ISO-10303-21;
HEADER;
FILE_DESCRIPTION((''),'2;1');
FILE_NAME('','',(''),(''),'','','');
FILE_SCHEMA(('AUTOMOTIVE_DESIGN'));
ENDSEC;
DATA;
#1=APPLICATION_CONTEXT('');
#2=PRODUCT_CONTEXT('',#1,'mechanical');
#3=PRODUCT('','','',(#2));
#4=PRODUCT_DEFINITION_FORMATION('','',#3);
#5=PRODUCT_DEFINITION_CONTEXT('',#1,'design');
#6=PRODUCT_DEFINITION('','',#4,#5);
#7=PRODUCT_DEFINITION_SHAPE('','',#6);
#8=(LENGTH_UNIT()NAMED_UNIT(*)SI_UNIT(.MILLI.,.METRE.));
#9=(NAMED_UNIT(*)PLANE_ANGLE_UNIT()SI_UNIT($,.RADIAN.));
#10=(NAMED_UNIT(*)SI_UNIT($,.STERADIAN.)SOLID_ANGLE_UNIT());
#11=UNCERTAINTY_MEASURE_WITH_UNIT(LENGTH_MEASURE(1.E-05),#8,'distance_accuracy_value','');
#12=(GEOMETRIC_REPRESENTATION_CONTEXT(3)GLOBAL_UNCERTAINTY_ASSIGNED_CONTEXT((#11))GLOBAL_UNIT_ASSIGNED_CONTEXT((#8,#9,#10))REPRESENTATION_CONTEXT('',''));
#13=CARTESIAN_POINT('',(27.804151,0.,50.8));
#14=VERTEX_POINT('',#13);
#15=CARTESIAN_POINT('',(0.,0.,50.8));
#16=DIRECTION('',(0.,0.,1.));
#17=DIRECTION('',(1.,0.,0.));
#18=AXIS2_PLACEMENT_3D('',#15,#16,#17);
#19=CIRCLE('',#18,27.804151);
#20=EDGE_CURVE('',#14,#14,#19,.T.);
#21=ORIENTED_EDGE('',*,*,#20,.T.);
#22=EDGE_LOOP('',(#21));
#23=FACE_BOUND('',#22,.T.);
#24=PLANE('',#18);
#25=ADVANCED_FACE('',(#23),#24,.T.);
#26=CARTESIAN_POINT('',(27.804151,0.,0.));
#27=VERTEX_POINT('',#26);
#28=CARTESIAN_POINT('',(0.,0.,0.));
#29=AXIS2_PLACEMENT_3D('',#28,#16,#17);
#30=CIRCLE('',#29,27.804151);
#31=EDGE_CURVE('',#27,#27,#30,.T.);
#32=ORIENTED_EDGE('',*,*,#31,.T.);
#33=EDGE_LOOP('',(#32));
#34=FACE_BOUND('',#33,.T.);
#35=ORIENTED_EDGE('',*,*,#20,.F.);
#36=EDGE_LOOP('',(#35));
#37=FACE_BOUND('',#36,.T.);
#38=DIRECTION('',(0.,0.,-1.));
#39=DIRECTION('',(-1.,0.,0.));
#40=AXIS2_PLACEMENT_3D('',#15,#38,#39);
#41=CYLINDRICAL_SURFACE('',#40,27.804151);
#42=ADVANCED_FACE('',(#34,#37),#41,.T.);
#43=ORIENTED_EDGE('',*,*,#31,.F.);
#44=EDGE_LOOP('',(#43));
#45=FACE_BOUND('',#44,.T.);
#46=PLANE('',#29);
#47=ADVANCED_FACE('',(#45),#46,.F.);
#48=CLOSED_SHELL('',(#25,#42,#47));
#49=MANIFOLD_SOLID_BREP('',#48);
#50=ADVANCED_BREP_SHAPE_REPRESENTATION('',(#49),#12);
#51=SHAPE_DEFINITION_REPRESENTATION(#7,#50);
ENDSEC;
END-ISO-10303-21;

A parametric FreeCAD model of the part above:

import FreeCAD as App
import Part
import Sketcher

V = App.Vector
Q = App.Units.Quantity

doc = App.newDocument("Part")
body = doc.addObject("PartDesign::Body", "Body")

# Sketch on XY plane
sketch1 = body.newObject("Sketcher::SketchObject", "Sketch")
sketch1.AttachmentSupport = (doc.getObject("XY_Plane"), [""])
sketch1.MapMode = "FlatFace"
sketch1.addGeometry(Part.Circle(V(0, 0, 0), V(0, 0, 1), 28), False)
sketch1.addConstraint(Sketcher.Constraint("Coincident", 0, 3, -1, 1))
sketch1.addConstraint(Sketcher.Constraint("Diameter", 0, Q("55.608302 mm")))
pad1 = body.newObject("PartDesign::Pad", "Pad")
pad1.Profile = sketch1
pad1.Length = Q("2 in")

doc.recompute()
